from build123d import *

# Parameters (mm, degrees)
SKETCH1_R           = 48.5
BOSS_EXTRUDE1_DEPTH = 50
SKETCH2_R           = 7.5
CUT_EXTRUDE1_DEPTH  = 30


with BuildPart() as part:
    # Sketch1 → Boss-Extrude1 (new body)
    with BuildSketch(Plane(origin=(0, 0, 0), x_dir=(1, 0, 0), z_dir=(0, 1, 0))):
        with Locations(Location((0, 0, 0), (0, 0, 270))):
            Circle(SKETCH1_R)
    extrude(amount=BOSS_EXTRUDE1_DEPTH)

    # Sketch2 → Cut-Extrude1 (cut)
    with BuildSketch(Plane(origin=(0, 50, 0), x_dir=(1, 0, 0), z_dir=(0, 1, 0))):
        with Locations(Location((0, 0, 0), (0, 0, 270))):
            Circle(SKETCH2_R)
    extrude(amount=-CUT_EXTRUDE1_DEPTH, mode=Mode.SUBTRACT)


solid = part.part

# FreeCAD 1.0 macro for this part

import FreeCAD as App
import Part
import Sketcher
Q = App.Units.Quantity

doc = App.newDocument("Part")
params = doc.addObject("Spreadsheet::Sheet", "Params")
for row, (alias, value) in enumerate([
    ("sketch1_diameter", "97 mm"),
    ("pad1_length", "50 mm"),
    ("sketch2_diameter", "15 mm"),
    ("pocket1_length", "30 mm"),
], start=1):
    params.set(f"A{row}", alias)
    params.set(f"B{row}", "=" + value)
    params.setAlias(f"B{row}", alias)

body = doc.addObject("PartDesign::Body", "Body")

# Sketch on XZ plane
sketch1 = body.newObject("Sketcher::SketchObject", "Sketch")
sketch1.AttachmentSupport = (doc.getObject("XZ_Plane"), [""])
sketch1.MapMode = "FlatFace"
sketch1.addGeometry(Part.Circle(App.Vector(0, 0, 0), App.Vector(0, 0, 1), 48.5), False)
sketch1.addConstraint([
    Sketcher.Constraint("Coincident", 0, 3, -1, 1),
    Sketcher.Constraint("Diameter", 0, Q("97 mm")),
])
sketch1.setExpression("Constraints[1]", "Params.sketch1_diameter")
pad1 = body.newObject("PartDesign::Pad", "Pad")
pad1.Profile = sketch1
pad1.setExpression("Length", "Params.pad1_length")
pad1.Reversed = True

# Sketch on XZ plane
sketch2 = body.newObject("Sketcher::SketchObject", "Sketch001")
sketch2.AttachmentSupport = (doc.getObject("XZ_Plane"), [""])
sketch2.MapMode = "FlatFace"
sketch2.AttachmentOffset = App.Placement(App.Vector(0, 0, -50), App.Rotation())
sketch2.addGeometry(Part.Circle(App.Vector(0, 0, 0), App.Vector(0, 0, 1), 7.5), False)
sketch2.addConstraint([
    Sketcher.Constraint("Coincident", 0, 3, -1, 1),
    Sketcher.Constraint("Diameter", 0, Q("15 mm")),
])
sketch2.setExpression("Constraints[1]", "Params.sketch2_diameter")
pocket1 = body.newObject("PartDesign::Pocket", "Pocket")
pocket1.Profile = sketch2
pocket1.setExpression("Length", "Params.pocket1_length")
pocket1.Reversed = True

doc.recompute()
